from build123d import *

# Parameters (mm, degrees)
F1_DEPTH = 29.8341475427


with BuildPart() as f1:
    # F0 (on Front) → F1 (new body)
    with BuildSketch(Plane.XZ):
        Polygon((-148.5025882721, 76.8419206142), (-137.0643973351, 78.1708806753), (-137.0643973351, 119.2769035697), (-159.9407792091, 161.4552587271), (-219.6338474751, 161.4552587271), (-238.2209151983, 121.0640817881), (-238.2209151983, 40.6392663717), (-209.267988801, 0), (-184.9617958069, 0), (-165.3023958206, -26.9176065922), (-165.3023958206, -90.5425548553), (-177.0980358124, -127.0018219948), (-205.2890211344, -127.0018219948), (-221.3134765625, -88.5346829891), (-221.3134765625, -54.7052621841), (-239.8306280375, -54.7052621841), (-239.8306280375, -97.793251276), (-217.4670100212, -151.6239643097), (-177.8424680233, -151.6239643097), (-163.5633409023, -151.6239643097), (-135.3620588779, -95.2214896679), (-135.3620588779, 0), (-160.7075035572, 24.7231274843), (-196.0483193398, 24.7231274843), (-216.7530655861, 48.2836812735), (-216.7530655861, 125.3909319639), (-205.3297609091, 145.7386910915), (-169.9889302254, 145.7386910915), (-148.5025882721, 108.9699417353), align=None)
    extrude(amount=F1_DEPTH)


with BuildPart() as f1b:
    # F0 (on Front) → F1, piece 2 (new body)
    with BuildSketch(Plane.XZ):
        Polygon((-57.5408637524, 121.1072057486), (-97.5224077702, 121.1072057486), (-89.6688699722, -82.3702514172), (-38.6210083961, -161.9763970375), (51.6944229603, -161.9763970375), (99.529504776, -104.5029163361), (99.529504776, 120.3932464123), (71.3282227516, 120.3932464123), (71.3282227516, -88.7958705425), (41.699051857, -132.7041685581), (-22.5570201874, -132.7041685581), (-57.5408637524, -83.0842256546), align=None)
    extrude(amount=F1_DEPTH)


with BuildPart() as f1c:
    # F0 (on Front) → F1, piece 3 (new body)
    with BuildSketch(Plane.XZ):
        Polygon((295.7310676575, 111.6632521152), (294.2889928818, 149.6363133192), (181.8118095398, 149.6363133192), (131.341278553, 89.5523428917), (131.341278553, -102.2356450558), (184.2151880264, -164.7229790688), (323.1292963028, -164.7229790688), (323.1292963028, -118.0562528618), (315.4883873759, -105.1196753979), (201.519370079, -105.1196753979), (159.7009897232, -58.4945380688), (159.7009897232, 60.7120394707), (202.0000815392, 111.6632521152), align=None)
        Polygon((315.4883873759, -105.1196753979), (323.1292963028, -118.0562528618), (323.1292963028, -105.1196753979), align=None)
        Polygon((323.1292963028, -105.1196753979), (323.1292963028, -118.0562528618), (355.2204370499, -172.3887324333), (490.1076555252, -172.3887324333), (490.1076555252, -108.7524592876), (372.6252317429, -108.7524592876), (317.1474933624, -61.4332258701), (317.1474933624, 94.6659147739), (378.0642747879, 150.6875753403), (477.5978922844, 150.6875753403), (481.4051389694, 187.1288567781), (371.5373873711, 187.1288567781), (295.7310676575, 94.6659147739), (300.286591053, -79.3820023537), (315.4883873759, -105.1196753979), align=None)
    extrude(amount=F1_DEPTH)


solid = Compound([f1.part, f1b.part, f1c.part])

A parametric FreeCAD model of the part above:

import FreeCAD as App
import Part
import Sketcher
Q = App.Units.Quantity

doc = App.newDocument("Part")
params = doc.addObject("Spreadsheet::Sheet", "Params")
for row, (alias, value) in enumerate([
    ("pad1_length", "29.834148 mm"),
    ("pad2_length", "29.834148 mm"),
    ("pad3_length", "29.834148 mm"),
], start=1):
    params.set(f"A{row}", alias)
    params.set(f"B{row}", "=" + value)
    params.setAlias(f"B{row}", alias)

body = doc.addObject("PartDesign::Body", "Body")

sketch1 = doc.addObject("Sketcher::SketchObject", "Sketch")
body.addObject(sketch1)
sketch1.AttachmentSupport = (doc.XZ_Plane, [""])
sketch1.MapMode = "FlatFace"
sketch1.addGeometry(Part.LineSegment(App.Vector(-148.502588, 76.841921, 0), App.Vector(-137.064397, 78.170881, 0)), False)
sketch1.addGeometry(Part.LineSegment(App.Vector(-137.064397, 78.170881, 0), App.Vector(-137.064397, 119.276904, 0)), False)
sketch1.addGeometry(Part.LineSegment(App.Vector(-137.064397, 119.276904, 0), App.Vector(-159.940779, 161.455259, 0)), False)
sketch1.addGeometry(Part.LineSegment(App.Vector(-159.940779, 161.455259, 0), App.Vector(-219.633847, 161.455259, 0)), False)
sketch1.addGeometry(Part.LineSegment(App.Vector(-219.633847, 161.455259, 0), App.Vector(-238.220915, 121.064082, 0)), False)
sketch1.addGeometry(Part.LineSegment(App.Vector(-238.220915, 121.064082, 0), App.Vector(-238.220915, 40.639266, 0)), False)
sketch1.addGeometry(Part.LineSegment(App.Vector(-238.220915, 40.639266, 0), App.Vector(-209.267989, 0, 0)), False)
sketch1.addGeometry(Part.LineSegment(App.Vector(-209.267989, 0, 0), App.Vector(-184.961796, 0, 0)), False)
sketch1.addGeometry(Part.LineSegment(App.Vector(-184.961796, 0, 0), App.Vector(-165.302396, -26.917607, 0)), False)
sketch1.addGeometry(Part.LineSegment(App.Vector(-165.302396, -26.917607, 0), App.Vector(-165.302396, -90.542555, 0)), False)
sketch1.addGeometry(Part.LineSegment(App.Vector(-165.302396, -90.542555, 0), App.Vector(-177.098036, -127.001822, 0)), False)
sketch1.addGeometry(Part.LineSegment(App.Vector(-177.098036, -127.001822, 0), App.Vector(-205.289021, -127.001822, 0)), False)
sketch1.addGeometry(Part.LineSegment(App.Vector(-205.289021, -127.001822, 0), App.Vector(-221.313477, -88.534683, 0)), False)
sketch1.addGeometry(Part.LineSegment(App.Vector(-221.313477, -88.534683, 0), App.Vector(-221.313477, -54.705262, 0)), False)
sketch1.addGeometry(Part.LineSegment(App.Vector(-221.313477, -54.705262, 0), App.Vector(-239.830628, -54.705262, 0)), False)
sketch1.addGeometry(Part.LineSegment(App.Vector(-239.830628, -54.705262, 0), App.Vector(-239.830628, -97.793251, 0)), False)
sketch1.addGeometry(Part.LineSegment(App.Vector(-239.830628, -97.793251, 0), App.Vector(-217.46701, -151.623964, 0)), False)
sketch1.addGeometry(Part.LineSegment(App.Vector(-217.46701, -151.623964, 0), App.Vector(-163.563341, -151.623964, 0)), False)
sketch1.addGeometry(Part.LineSegment(App.Vector(-163.563341, -151.623964, 0), App.Vector(-135.362059, -95.22149, 0)), False)
sketch1.addGeometry(Part.LineSegment(App.Vector(-135.362059, -95.22149, 0), App.Vector(-135.362059, 0, 0)), False)
sketch1.addGeometry(Part.LineSegment(App.Vector(-135.362059, 0, 0), App.Vector(-160.707504, 24.723127, 0)), False)
sketch1.addGeometry(Part.LineSegment(App.Vector(-160.707504, 24.723127, 0), App.Vector(-196.048319, 24.723127, 0)), False)
sketch1.addGeometry(Part.LineSegment(App.Vector(-196.048319, 24.723127, 0), App.Vector(-216.753066, 48.283681, 0)), False)
sketch1.addGeometry(Part.LineSegment(App.Vector(-216.753066, 48.283681, 0), App.Vector(-216.753066, 125.390932, 0)), False)
sketch1.addGeometry(Part.LineSegment(App.Vector(-216.753066, 125.390932, 0), App.Vector(-205.329761, 145.738691, 0)), False)
sketch1.addGeometry(Part.LineSegment(App.Vector(-205.329761, 145.738691, 0), App.Vector(-169.98893, 145.738691, 0)), False)
sketch1.addGeometry(Part.LineSegment(App.Vector(-169.98893, 145.738691, 0), App.Vector(-148.502588, 108.969942, 0)), False)
sketch1.addGeometry(Part.LineSegment(App.Vector(-148.502588, 108.969942, 0), App.Vector(-148.502588, 76.841921, 0)), False)
sketch1.addConstraint(Sketcher.Constraint("Coincident", 0, 2, 1, 1))
sketch1.addConstraint(Sketcher.Constraint("Coincident", 1, 2, 2, 1))
sketch1.addConstraint(Sketcher.Constraint("Coincident", 2, 2, 3, 1))
sketch1.addConstraint(Sketcher.Constraint("Coincident", 3, 2, 4, 1))
sketch1.addConstraint(Sketcher.Constraint("Coincident", 4, 2, 5, 1))
sketch1.addConstraint(Sketcher.Constraint("Coincident", 5, 2, 6, 1))
sketch1.addConstraint(Sketcher.Constraint("Coincident", 6, 2, 7, 1))
sketch1.addConstraint(Sketcher.Constraint("Coincident", 7, 2, 8, 1))
sketch1.addConstraint(Sketcher.Constraint("Coincident", 8, 2, 9, 1))
sketch1.addConstraint(Sketcher.Constraint("Coincident", 9, 2, 10, 1))
sketch1.addConstraint(Sketcher.Constraint("Coincident", 10, 2, 11, 1))
sketch1.addConstraint(Sketcher.Constraint("Coincident", 11, 2, 12, 1))
sketch1.addConstraint(Sketcher.Constraint("Coincident", 12, 2, 13, 1))
sketch1.addConstraint(Sketcher.Constraint("Coincident", 13, 2, 14, 1))
sketch1.addConstraint(Sketcher.Constraint("Coincident", 14, 2, 15, 1))
sketch1.addConstraint(Sketcher.Constraint("Coincident", 15, 2, 16, 1))
sketch1.addConstraint(Sketcher.Constraint("Coincident", 16, 2, 17, 1))
sketch1.addConstraint(Sketcher.Constraint("Coincident", 17, 2, 18, 1))
sketch1.addConstraint(Sketcher.Constraint("Coincident", 18, 2, 19, 1))
sketch1.addConstraint(Sketcher.Constraint("Coincident", 19, 2, 20, 1))
sketch1.addConstraint(Sketcher.Constraint("Coincident", 20, 2, 21, 1))
sketch1.addConstraint(Sketcher.Constraint("Coincident", 21, 2, 22, 1))
sketch1.addConstraint(Sketcher.Constraint("Coincident", 22, 2, 23, 1))
sketch1.addConstraint(Sketcher.Constraint("Coincident", 23, 2, 24, 1))
sketch1.addConstraint(Sketcher.Constraint("Coincident", 24, 2, 25, 1))
sketch1.addConstraint(Sketcher.Constraint("Coincident", 25, 2, 26, 1))
sketch1.addConstraint(Sketcher.Constraint("Coincident", 26, 2, 27, 1))
sketch1.addConstraint(Sketcher.Constraint("Coincident", 27, 2, 0, 1))
sketch1.addConstraint(Sketcher.Constraint("Vertical", 1))
sketch1.addConstraint(Sketcher.Constraint("Horizontal", 3))
sketch1.addConstraint(Sketcher.Constraint("Vertical", 5))
sketch1.addConstraint(Sketcher.Constraint("Horizontal", 7))
sketch1.addConstraint(Sketcher.Constraint("Vertical", 9))
sketch1.addConstraint(Sketcher.Constraint("Horizontal", 11))
sketch1.addConstraint(Sketcher.Constraint("Vertical", 13))
sketch1.addConstraint(Sketcher.Constraint("Horizontal", 14))
sketch1.addConstraint(Sketcher.Constraint("Vertical", 15))
sketch1.addConstraint(Sketcher.Constraint("Horizontal", 17))
sketch1.addConstraint(Sketcher.Constraint("Vertical", 19))
sketch1.addConstraint(Sketcher.Constraint("Horizontal", 21))
sketch1.addConstraint(Sketcher.Constraint("Vertical", 23))
sketch1.addConstraint(Sketcher.Constraint("Horizontal", 25))
sketch1.addConstraint(Sketcher.Constraint("Vertical", 27))
sketch1.addConstraint(Sketcher.Constraint("PointOnObject", 6, 2, -1))
sketch1.addConstraint(Sketcher.Constraint("PointOnObject", 19, 2, -1))
sketch1.addConstraint(Sketcher.Constraint("Angle", 24, Q("60.68999 deg")))
sketch1.addConstraint(Sketcher.Constraint("DistanceX", 8, 2, 0, 2, Q("28.237998 mm")))
sketch1.addConstraint(Sketcher.Constraint("DistanceX", 3, 2, 3, 1, Q("59.693068 mm")))
sketch1.addConstraint(Sketcher.Constraint("DistanceX", 14, 2, 14, 1, Q("18.517151 mm")))
sketch1.addConstraint(Sketcher.Constraint("DistanceX", 17, 1, 17, 2, Q("53.903669 mm")))
sketch1.addConstraint(Sketcher.Constraint("DistanceX", 25, 1, 25, 2, Q("35.340831 mm")))
sketch1.addConstraint(Sketcher.Constraint("DistanceY", 9, 2, 9, 1, Q("63.624948 mm")))
sketch1.addConstraint(Sketcher.Constraint("DistanceY", 13, 1, 13, 2, Q("33.829421 mm")))
sketch1.addConstraint(Sketcher.Constraint("DistanceY", 15, 2, 15, 1, Q("43.087989 mm")))
sketch1.addConstraint(Sketcher.Constraint("DistanceY", 19, 1, 19, 2, Q("95.22149 mm")))
sketch1.addConstraint(Sketcher.Constraint("DistanceY", 23, 1, 23, 2, Q("77.107251 mm")))
sketch1.addConstraint(Sketcher.Constraint("DistanceY", 27, 2, 27, 1, Q("32.128021 mm")))
sketch1.addConstraint(Sketcher.Constraint("DistanceY", 0, 2, 4, 2, Q("42.893201 mm")))
sketch1.addConstraint(Sketcher.Constraint("DistanceX", 7, 2, 0, 2, Q("47.897398 mm")))
sketch1.addConstraint(Sketcher.Constraint("Distance", 2, Q("47.982731 mm")))
sketch1.addConstraint(Sketcher.Constraint("Distance", 4, Q("44.462639 mm")))
sketch1.addConstraint(Sketcher.Constraint("Distance", 8, Q("33.33241 mm")))
sketch1.addConstraint(Sketcher.Constraint("Distance", 12, Q("41.671381 mm")))
sketch1.addConstraint(Sketcher.Constraint("Distance", 20, Q("35.406562 mm")))
sketch1.addConstraint(Sketcher.Constraint("Distance", 24, Q("23.335021 mm")))
sketch1.addConstraint(Sketcher.Constraint("DistanceX", 7, 1, 7, 2, Q("24.306193 mm")))
sketch1.addConstraint(Sketcher.Constraint("DistanceX", 11, 2, 11, 1, Q("28.190985 mm")))
sketch1.addConstraint(Sketcher.Constraint("DistanceX", 21, 2, 21, 1, Q("35.340816 mm")))
sketch1.addConstraint(Sketcher.Constraint("DistanceY", 1, 1, 1, 2, Q("41.106023 mm")))
sketch1.addConstraint(Sketcher.Constraint("DistanceY", 5, 2, 5, 1, Q("80.424815 mm")))
sketch1.addConstraint(Sketcher.Constraint("DistanceY", -1, 1, 0, 2, Q("78.170881 mm")))
sketch1.addConstraint(Sketcher.Constraint("DistanceX", 2, 2, -1, 1, Q("159.940779 mm")))
sketch1.addConstraint(Sketcher.Constraint("DistanceY", -1, 1, 2, 2, Q("161.455259 mm")))
sketch1.addConstraint(Sketcher.Constraint("DistanceY", 10, 2, -1, 1, Q("127.001822 mm")))
sketch1.addConstraint(Sketcher.Constraint("DistanceX", 11, 2, -1, 1, Q("205.289021 mm")))
sketch1.addConstraint(Sketcher.Constraint("DistanceX", 14, 2, -1, 1, Q("239.830628 mm")))
sketch1.addConstraint(Sketcher.Constraint("DistanceX", 16, 2, -1, 1, Q("217.46701 mm")))
sketch1.addConstraint(Sketcher.Constraint("DistanceX", 18, 2, -1, 1, Q("135.362059 mm")))
sketch1.addConstraint(Sketcher.Constraint("DistanceX", 21, 2, -1, 1, Q("196.048319 mm")))
sketch1.addConstraint(Sketcher.Constraint("DistanceY", -1, 1, 22, 2, Q("48.283681 mm")))
sketch1.addConstraint(Sketcher.Constraint("DistanceX", 24, 2, -1, 1, Q("205.329761 mm")))
sketch1.addConstraint(Sketcher.Constraint("DistanceX", 26, 2, -1, 1, Q("148.502588 mm")))
sketch1.addConstraint(Sketcher.Constraint("DistanceY", -1, 1, 26, 2, Q("108.969942 mm")))
sketch1.addConstraint(Sketcher.Constraint("DistanceY", 16, 2, 12, 2, Q("63.089281 mm")))
pad1 = doc.addObject("PartDesign::Pad", "Pad")
body.addObject(pad1)
pad1.Profile = sketch1
pad1.setExpression("Length", "Params.pad1_length")
body2 = doc.addObject("PartDesign::Body", "Body001")

sketch2 = doc.addObject("Sketcher::SketchObject", "Sketch001")
body2.addObject(sketch2)
sketch2.AttachmentSupport = (doc.getObject("XZ_Plane001"), [""])
sketch2.MapMode = "FlatFace"
sketch2.addGeometry(Part.LineSegment(App.Vector(-57.540864, 121.107206, 0), App.Vector(-97.522408, 121.107206, 0)), False)
sketch2.addGeometry(Part.LineSegment(App.Vector(-97.522408, 121.107206, 0), App.Vector(-89.66887, -82.370251, 0)), False)
sketch2.addGeometry(Part.LineSegment(App.Vector(-89.66887, -82.370251, 0), App.Vector(-38.621008, -161.976397, 0)), False)
sketch2.addGeometry(Part.LineSegment(App.Vector(-38.621008, -161.976397, 0), App.Vector(51.694423, -161.976397, 0)), False)
sketch2.addGeometry(Part.LineSegment(App.Vector(51.694423, -161.976397, 0), App.Vector(99.529505, -104.502916, 0)), False)
sketch2.addGeometry(Part.LineSegment(App.Vector(99.529505, -104.502916, 0), App.Vector(99.529505, 120.393246, 0)), False)
sketch2.addGeometry(Part.LineSegment(App.Vector(99.529505, 120.393246, 0), App.Vector(71.328223, 120.393246, 0)), False)
sketch2.addGeometry(Part.LineSegment(App.Vector(71.328223, 120.393246, 0), App.Vector(71.328223, -88.795871, 0)), False)
sketch2.addGeometry(Part.LineSegment(App.Vector(71.328223, -88.795871, 0), App.Vector(41.699052, -132.704169, 0)), False)
sketch2.addGeometry(Part.LineSegment(App.Vector(41.699052, -132.704169, 0), App.Vector(-22.55702, -132.704169, 0)), False)
sketch2.addGeometry(Part.LineSegment(App.Vector(-22.55702, -132.704169, 0), App.Vector(-57.540864, -83.084226, 0)), False)
sketch2.addGeometry(Part.LineSegment(App.Vector(-57.540864, -83.084226, 0), App.Vector(-57.540864, 121.107206, 0)), False)
sketch2.addConstraint(Sketcher.Constraint("Coincident", 0, 2, 1, 1))
sketch2.addConstraint(Sketcher.Constraint("Coincident", 1, 2, 2, 1))
sketch2.addConstraint(Sketcher.Constraint("Coincident", 2, 2, 3, 1))
sketch2.addConstraint(Sketcher.Constraint("Coincident", 3, 2, 4, 1))
sketch2.addConstraint(Sketcher.Constraint("Coincident", 4, 2, 5, 1))
sketch2.addConstraint(Sketcher.Constraint("Coincident", 5, 2, 6, 1))
sketch2.addConstraint(Sketcher.Constraint("Coincident", 6, 2, 7, 1))
sketch2.addConstraint(Sketcher.Constraint("Coincident", 7, 2, 8, 1))
sketch2.addConstraint(Sketcher.Constraint("Coincident", 8, 2, 9, 1))
sketch2.addConstraint(Sketcher.Constraint("Coincident", 9, 2, 10, 1))
sketch2.addConstraint(Sketcher.Constraint("Coincident", 10, 2, 11, 1))
sketch2.addConstraint(Sketcher.Constraint("Coincident", 11, 2, 0, 1))
sketch2.addConstraint(Sketcher.Constraint("Horizontal", 0))
sketch2.addConstraint(Sketcher.Constraint("Horizontal", 3))
sketch2.addConstraint(Sketcher.Constraint("Vertical", 5))
sketch2.addConstraint(Sketcher.Constraint("Horizontal", 6))
sketch2.addConstraint(Sketcher.Constraint("Vertical", 7))
sketch2.addConstraint(Sketcher.Constraint("Horizontal", 9))
sketch2.addConstraint(Sketcher.Constraint("Vertical", 11))
sketch2.addConstraint(Sketcher.Constraint("DistanceX", 3, 1, 3, 2, Q("90.315431 mm")))
sketch2.addConstraint(Sketcher.Constraint("DistanceY", 11, 1, 11, 2, Q("204.191431 mm")))
sketch2.addConstraint(Sketcher.Constraint("DistanceX", 0, 2, 2, 2, Q("58.901399 mm")))
sketch2.addConstraint(Sketcher.Constraint("DistanceX", 3, 2, 6, 2, Q("19.6338 mm")))
sketch2.addConstraint(Sketcher.Constraint("DistanceY", 8, 2, 7, 2, Q("43.908298 mm")))
sketch2.addConstraint(Sketcher.Constraint("Distance", 1, Q("203.628961 mm")))
sketch2.addConstraint(Sketcher.Constraint("Distance", 8, Q("52.970052 mm")))
sketch2.addConstraint(Sketcher.Constraint("DistanceX", 0, 2, 0, 1, Q("39.981544 mm")))
sketch2.addConstraint(Sketcher.Constraint("DistanceX", 6, 2, 6, 1, Q("28.201282 mm")))
sketch2.addConstraint(Sketcher.Constraint("DistanceX", 9, 2, 9, 1, Q("64.256072 mm")))
sketch2.addConstraint(Sketcher.Constraint("DistanceY", 5, 1, 5, 2, Q("224.896163 mm")))
sketch2.addConstraint(Sketcher.Constraint("DistanceY", 7, 2, 7, 1, Q("209.189117 mm")))
sketch2.addConstraint(Sketcher.Constraint("DistanceX", 1, 2, -1, 1, Q("89.66887 mm")))
sketch2.addConstraint(Sketcher.Constraint("DistanceY", 1, 2, -1, 1, Q("82.370251 mm")))
sketch2.addConstraint(Sketcher.Constraint("DistanceX", 2, 2, -1, 1, Q("38.621008 mm")))
sketch2.addConstraint(Sketcher.Constraint("DistanceY", 7, 2, -1, 1, Q("88.795871 mm")))
sketch2.addConstraint(Sketcher.Constraint("DistanceY", 3, 2, 4, 2, Q("57.473481 mm")))
pad2 = doc.addObject("PartDesign::Pad", "Pad001")
body2.addObject(pad2)
pad2.Profile = sketch2
pad2.setExpression("Length", "Params.pad2_length")
body3 = doc.addObject("PartDesign::Body", "Body002")

sketch3 = doc.addObject("Sketcher::SketchObject", "Sketch002")
body3.addObject(sketch3)
sketch3.AttachmentSupport = (doc.getObject("XZ_Plane002"), [""])
sketch3.MapMode = "FlatFace"
sketch3.addGeometry(Part.LineSegment(App.Vector(295.731068, 111.663252, 0), App.Vector(294.288993, 149.636313, 0)), False)
sketch3.addGeometry(Part.LineSegment(App.Vector(294.288993, 149.636313, 0), App.Vector(181.81181, 149.636313, 0)), False)
sketch3.addGeometry(Part.LineSegment(App.Vector(181.81181, 149.636313, 0), App.Vector(131.341279, 89.552343, 0)), False)
sketch3.addGeometry(Part.LineSegment(App.Vector(131.341279, 89.552343, 0), App.Vector(131.341279, -102.235645, 0)), False)
sketch3.addGeometry(Part.LineSegment(App.Vector(131.341279, -102.235645, 0), App.Vector(184.215188, -164.722979, 0)), False)
sketch3.addGeometry(Part.LineSegment(App.Vector(184.215188, -164.722979, 0), App.Vector(323.129296, -164.722979, 0)), False)
sketch3.addGeometry(Part.LineSegment(App.Vector(323.129296, -164.722979, 0), App.Vector(323.129296, -118.056253, 0)), False)
sketch3.addGeometry(Part.LineSegment(App.Vector(323.129296, -118.056253, 0), App.Vector(355.220437, -172.388732, 0)), False)
sketch3.addGeometry(Part.LineSegment(App.Vector(355.220437, -172.388732, 0), App.Vector(490.107656, -172.388732, 0)), False)
sketch3.addGeometry(Part.LineSegment(App.Vector(490.107656, -172.388732, 0), App.Vector(490.107656, -108.752459, 0)), False)
sketch3.addGeometry(Part.LineSegment(App.Vector(490.107656, -108.752459, 0), App.Vector(372.625232, -108.752459, 0)), False)
sketch3.addGeometry(Part.LineSegment(App.Vector(372.625232, -108.752459, 0), App.Vector(317.147493, -61.433226, 0)), False)
sketch3.addGeometry(Part.LineSegment(App.Vector(317.147493, -61.433226, 0), App.Vector(317.147493, 94.665915, 0)), False)
sketch3.addGeometry(Part.LineSegment(App.Vector(317.147493, 94.665915, 0), App.Vector(378.064275, 150.687575, 0)), False)
sketch3.addGeometry(Part.LineSegment(App.Vector(378.064275, 150.687575, 0), App.Vector(477.597892, 150.687575, 0)), False)
sketch3.addGeometry(Part.LineSegment(App.Vector(477.597892, 150.687575, 0), App.Vector(481.405139, 187.128857, 0)), False)
sketch3.addGeometry(Part.LineSegment(App.Vector(481.405139, 187.128857, 0), App.Vector(371.537387, 187.128857, 0)), False)
sketch3.addGeometry(Part.LineSegment(App.Vector(371.537387, 187.128857, 0), App.Vector(295.731068, 94.665915, 0)), False)
sketch3.addGeometry(Part.LineSegment(App.Vector(295.731068, 94.665915, 0), App.Vector(300.286591, -79.382002, 0)), False)
sketch3.addGeometry(Part.LineSegment(App.Vector(300.286591, -79.382002, 0), App.Vector(315.488387, -105.119675, 0)), False)
sketch3.addGeometry(Part.LineSegment(App.Vector(315.488387, -105.119675, 0), App.Vector(201.51937, -105.119675, 0)), False)
sketch3.addGeometry(Part.LineSegment(App.Vector(201.51937, -105.119675, 0), App.Vector(159.70099, -58.494538, 0)), False)
sketch3.addGeometry(Part.LineSegment(App.Vector(159.70099, -58.494538, 0), App.Vector(159.70099, 60.712039, 0)), False)
sketch3.addGeometry(Part.LineSegment(App.Vector(159.70099, 60.712039, 0), App.Vector(202.000082, 111.663252, 0)), False)
sketch3.addGeometry(Part.LineSegment(App.Vector(202.000082, 111.663252, 0), App.Vector(295.731068, 111.663252, 0)), False)
sketch3.addConstraint(Sketcher.Constraint("Coincident", 0, 2, 1, 1))
sketch3.addConstraint(Sketcher.Constraint("Coincident", 1, 2, 2, 1))
sketch3.addConstraint(Sketcher.Constraint("Coincident", 2, 2, 3, 1))
sketch3.addConstraint(Sketcher.Constraint("Coincident", 3, 2, 4, 1))
sketch3.addConstraint(Sketcher.Constraint("Coincident", 4, 2, 5, 1))
sketch3.addConstraint(Sketcher.Constraint("Coincident", 5, 2, 6, 1))
sketch3.addConstraint(Sketcher.Constraint("Coincident", 6, 2, 7, 1))
sketch3.addConstraint(Sketcher.Constraint("Coincident", 7, 2, 8, 1))
sketch3.addConstraint(Sketcher.Constraint("Coincident", 8, 2, 9, 1))
sketch3.addConstraint(Sketcher.Constraint("Coincident", 9, 2, 10, 1))
sketch3.addConstraint(Sketcher.Constraint("Coincident", 10, 2, 11, 1))
sketch3.addConstraint(Sketcher.Constraint("Coincident", 11, 2, 12, 1))
sketch3.addConstraint(Sketcher.Constraint("Coincident", 12, 2, 13, 1))
sketch3.addConstraint(Sketcher.Constraint("Coincident", 13, 2, 14, 1))
sketch3.addConstraint(Sketcher.Constraint("Coincident", 14, 2, 15, 1))
sketch3.addConstraint(Sketcher.Constraint("Coincident", 15, 2, 16, 1))
sketch3.addConstraint(Sketcher.Constraint("Coincident", 16, 2, 17, 1))
sketch3.addConstraint(Sketcher.Constraint("Coincident", 17, 2, 18, 1))
sketch3.addConstraint(Sketcher.Constraint("Coincident", 18, 2, 19, 1))
sketch3.addConstraint(Sketcher.Constraint("Coincident", 19, 2, 20, 1))
sketch3.addConstraint(Sketcher.Constraint("Coincident", 20, 2, 21, 1))
sketch3.addConstraint(Sketcher.Constraint("Coincident", 21, 2, 22, 1))
sketch3.addConstraint(Sketcher.Constraint("Coincident", 22, 2, 23, 1))
sketch3.addConstraint(Sketcher.Constraint("Coincident", 23, 2, 24, 1))
sketch3.addConstraint(Sketcher.Constraint("Coincident", 24, 2, 0, 1))
sketch3.addConstraint(Sketcher.Constraint("Horizontal", 1))
sketch3.addConstraint(Sketcher.Constraint("Vertical", 3))
sketch3.addConstraint(Sketcher.Constraint("Horizontal", 5))
sketch3.addConstraint(Sketcher.Constraint("Vertical", 6))
sketch3.addConstraint(Sketcher.Constraint("Horizontal", 8))
sketch3.addConstraint(Sketcher.Constraint("Vertical", 9))
sketch3.addConstraint(Sketcher.Constraint("Horizontal", 10))
sketch3.addConstraint(Sketcher.Constraint("Vertical", 12))
sketch3.addConstraint(Sketcher.Constraint("Horizontal", 14))
sketch3.addConstraint(Sketcher.Constraint("Horizontal", 16))
sketch3.addConstraint(Sketcher.Constraint("Horizontal", 20))
sketch3.addConstraint(Sketcher.Constraint("Vertical", 22))
sketch3.addConstraint(Sketcher.Constraint("Horizontal", 24))
sketch3.addConstraint(Sketcher.Constraint("Parallel", 7, 19))
sketch3.addConstraint(Sketcher.Constraint("Horizontal", 12, 2, 17, 2))
sketch3.addConstraint(Sketcher.Constraint("Vertical", 17, 2, 24, 2))
sketch3.addConstraint(Sketcher.Constraint("DistanceX", 5, 1, 5, 2, Q("138.914108 mm")))
sketch3.addConstraint(Sketcher.Constraint("DistanceX", 8, 1, 8, 2, Q("134.887218 mm")))
sketch3.addConstraint(Sketcher.Constraint("DistanceX", 16, 2, 16, 1, Q("109.867752 mm")))
sketch3.addConstraint(Sketcher.Constraint("DistanceY", 12, 1, 12, 2, Q("156.099141 mm")))
sketch3.addConstraint(Sketcher.Constraint("DistanceX", 0, 2, 12, 2, Q("22.8585 mm")))
sketch3.addConstraint(Sketcher.Constraint("DistanceY", 12, 2, 0, 2, Q("54.970399 mm")))
sketch3.addConstraint(Sketcher.Constraint("DistanceY", 11, 2, 13, 2, Q("212.120801 mm")))
sketch3.addConstraint(Sketcher.Constraint("DistanceX", 12, 2, 14, 2, Q("160.450399 mm")))
sketch3.addConstraint(Sketcher.Constraint("DistanceX", 21, 2, 4, 2, Q("24.514198 mm")))
sketch3.addConstraint(Sketcher.Constraint("DistanceX", 21, 2, 18, 2, Q("140.585601 mm")))
sketch3.addConstraint(Sketcher.Constraint("Distance", 7, Q("63.101978 mm")))
sketch3.addConstraint(Sketcher.Constraint("Distance", 13, Q("82.760381 mm")))
sketch3.addConstraint(Sketcher.Constraint("Distance", 23, Q("66.221139 mm")))
sketch3.addConstraint(Sketcher.Constraint("DistanceX", 1, 2, 1, 1, Q("112.477183 mm")))
sketch3.addConstraint(Sketcher.Constraint("DistanceX", 10, 2, 10, 1, Q("117.482424 mm")))
sketch3.addConstraint(Sketcher.Constraint("DistanceX", 20, 2, 20, 1, Q("113.969017 mm")))
sketch3.addConstraint(Sketcher.Constraint("DistanceX", 24, 1, 24, 2, Q("93.730986 mm")))
sketch3.addConstraint(Sketcher.Constraint("DistanceY", 3, 2, 3, 1, Q("191.787988 mm")))
sketch3.addConstraint(Sketcher.Constraint("DistanceY", 6, 1, 6, 2, Q("46.666726 mm")))
sketch3.addConstraint(Sketcher.Constraint("DistanceY", 9, 1, 9, 2, Q("63.636273 mm")))
sketch3.addConstraint(Sketcher.Constraint("DistanceY", 22, 1, 22, 2, Q("119.206578 mm")))
sketch3.addConstraint(Sketcher.Constraint("DistanceX", -1, 1, 1, 2, Q("181.81181 mm")))
sketch3.addConstraint(Sketcher.Constraint("DistanceX", -1, 1, 2, 2, Q("131.341279 mm")))
sketch3.addConstraint(Sketcher.Constraint("DistanceX", -1, 1, 4, 2, Q("184.215188 mm")))
sketch3.addConstraint(Sketcher.Constraint("DistanceY", 4, 2, -1, 1, Q("164.722979 mm")))
sketch3.addConstraint(Sketcher.Constraint("DistanceY", 9, 2, -1, 1, Q("108.752459 mm")))
sketch3.addConstraint(Sketcher.Constraint("DistanceX", -1, 1, 15, 2, Q("481.405139 mm")))
sketch3.addConstraint(Sketcher.Constraint("DistanceX", -1, 1, 20, 2, Q("201.51937 mm")))
sketch3.addConstraint(Sketcher.Constraint("DistanceY", 21, 2, -1, 1, Q("58.494538 mm")))
sketch3.addConstraint(Sketcher.Constraint("DistanceX", -1, 1, 23, 2, Q("202.000082 mm")))
sketch3.addConstraint(Sketcher.Constraint("DistanceY", 2, 2, 1, 2, Q("60.08397 mm")))
sketch3.addConstraint(Sketcher.Constraint("DistanceY", 4, 2, 2, 2, Q("254.275322 mm")))
sketch3.addConstraint(Sketcher.Constraint("DistanceY", 14, 2, 15, 2, Q("36.441281 mm")))
sketch3.addConstraint(Sketcher.Constraint("DistanceY", 6, 2, 18, 2, Q("38.674251 mm")))
pad3 = doc.addObject("PartDesign::Pad", "Pad002")
body3.addObject(pad3)
pad3.Profile = sketch3
pad3.setExpression("Length", "Params.pad3_length")

doc.recompute()
